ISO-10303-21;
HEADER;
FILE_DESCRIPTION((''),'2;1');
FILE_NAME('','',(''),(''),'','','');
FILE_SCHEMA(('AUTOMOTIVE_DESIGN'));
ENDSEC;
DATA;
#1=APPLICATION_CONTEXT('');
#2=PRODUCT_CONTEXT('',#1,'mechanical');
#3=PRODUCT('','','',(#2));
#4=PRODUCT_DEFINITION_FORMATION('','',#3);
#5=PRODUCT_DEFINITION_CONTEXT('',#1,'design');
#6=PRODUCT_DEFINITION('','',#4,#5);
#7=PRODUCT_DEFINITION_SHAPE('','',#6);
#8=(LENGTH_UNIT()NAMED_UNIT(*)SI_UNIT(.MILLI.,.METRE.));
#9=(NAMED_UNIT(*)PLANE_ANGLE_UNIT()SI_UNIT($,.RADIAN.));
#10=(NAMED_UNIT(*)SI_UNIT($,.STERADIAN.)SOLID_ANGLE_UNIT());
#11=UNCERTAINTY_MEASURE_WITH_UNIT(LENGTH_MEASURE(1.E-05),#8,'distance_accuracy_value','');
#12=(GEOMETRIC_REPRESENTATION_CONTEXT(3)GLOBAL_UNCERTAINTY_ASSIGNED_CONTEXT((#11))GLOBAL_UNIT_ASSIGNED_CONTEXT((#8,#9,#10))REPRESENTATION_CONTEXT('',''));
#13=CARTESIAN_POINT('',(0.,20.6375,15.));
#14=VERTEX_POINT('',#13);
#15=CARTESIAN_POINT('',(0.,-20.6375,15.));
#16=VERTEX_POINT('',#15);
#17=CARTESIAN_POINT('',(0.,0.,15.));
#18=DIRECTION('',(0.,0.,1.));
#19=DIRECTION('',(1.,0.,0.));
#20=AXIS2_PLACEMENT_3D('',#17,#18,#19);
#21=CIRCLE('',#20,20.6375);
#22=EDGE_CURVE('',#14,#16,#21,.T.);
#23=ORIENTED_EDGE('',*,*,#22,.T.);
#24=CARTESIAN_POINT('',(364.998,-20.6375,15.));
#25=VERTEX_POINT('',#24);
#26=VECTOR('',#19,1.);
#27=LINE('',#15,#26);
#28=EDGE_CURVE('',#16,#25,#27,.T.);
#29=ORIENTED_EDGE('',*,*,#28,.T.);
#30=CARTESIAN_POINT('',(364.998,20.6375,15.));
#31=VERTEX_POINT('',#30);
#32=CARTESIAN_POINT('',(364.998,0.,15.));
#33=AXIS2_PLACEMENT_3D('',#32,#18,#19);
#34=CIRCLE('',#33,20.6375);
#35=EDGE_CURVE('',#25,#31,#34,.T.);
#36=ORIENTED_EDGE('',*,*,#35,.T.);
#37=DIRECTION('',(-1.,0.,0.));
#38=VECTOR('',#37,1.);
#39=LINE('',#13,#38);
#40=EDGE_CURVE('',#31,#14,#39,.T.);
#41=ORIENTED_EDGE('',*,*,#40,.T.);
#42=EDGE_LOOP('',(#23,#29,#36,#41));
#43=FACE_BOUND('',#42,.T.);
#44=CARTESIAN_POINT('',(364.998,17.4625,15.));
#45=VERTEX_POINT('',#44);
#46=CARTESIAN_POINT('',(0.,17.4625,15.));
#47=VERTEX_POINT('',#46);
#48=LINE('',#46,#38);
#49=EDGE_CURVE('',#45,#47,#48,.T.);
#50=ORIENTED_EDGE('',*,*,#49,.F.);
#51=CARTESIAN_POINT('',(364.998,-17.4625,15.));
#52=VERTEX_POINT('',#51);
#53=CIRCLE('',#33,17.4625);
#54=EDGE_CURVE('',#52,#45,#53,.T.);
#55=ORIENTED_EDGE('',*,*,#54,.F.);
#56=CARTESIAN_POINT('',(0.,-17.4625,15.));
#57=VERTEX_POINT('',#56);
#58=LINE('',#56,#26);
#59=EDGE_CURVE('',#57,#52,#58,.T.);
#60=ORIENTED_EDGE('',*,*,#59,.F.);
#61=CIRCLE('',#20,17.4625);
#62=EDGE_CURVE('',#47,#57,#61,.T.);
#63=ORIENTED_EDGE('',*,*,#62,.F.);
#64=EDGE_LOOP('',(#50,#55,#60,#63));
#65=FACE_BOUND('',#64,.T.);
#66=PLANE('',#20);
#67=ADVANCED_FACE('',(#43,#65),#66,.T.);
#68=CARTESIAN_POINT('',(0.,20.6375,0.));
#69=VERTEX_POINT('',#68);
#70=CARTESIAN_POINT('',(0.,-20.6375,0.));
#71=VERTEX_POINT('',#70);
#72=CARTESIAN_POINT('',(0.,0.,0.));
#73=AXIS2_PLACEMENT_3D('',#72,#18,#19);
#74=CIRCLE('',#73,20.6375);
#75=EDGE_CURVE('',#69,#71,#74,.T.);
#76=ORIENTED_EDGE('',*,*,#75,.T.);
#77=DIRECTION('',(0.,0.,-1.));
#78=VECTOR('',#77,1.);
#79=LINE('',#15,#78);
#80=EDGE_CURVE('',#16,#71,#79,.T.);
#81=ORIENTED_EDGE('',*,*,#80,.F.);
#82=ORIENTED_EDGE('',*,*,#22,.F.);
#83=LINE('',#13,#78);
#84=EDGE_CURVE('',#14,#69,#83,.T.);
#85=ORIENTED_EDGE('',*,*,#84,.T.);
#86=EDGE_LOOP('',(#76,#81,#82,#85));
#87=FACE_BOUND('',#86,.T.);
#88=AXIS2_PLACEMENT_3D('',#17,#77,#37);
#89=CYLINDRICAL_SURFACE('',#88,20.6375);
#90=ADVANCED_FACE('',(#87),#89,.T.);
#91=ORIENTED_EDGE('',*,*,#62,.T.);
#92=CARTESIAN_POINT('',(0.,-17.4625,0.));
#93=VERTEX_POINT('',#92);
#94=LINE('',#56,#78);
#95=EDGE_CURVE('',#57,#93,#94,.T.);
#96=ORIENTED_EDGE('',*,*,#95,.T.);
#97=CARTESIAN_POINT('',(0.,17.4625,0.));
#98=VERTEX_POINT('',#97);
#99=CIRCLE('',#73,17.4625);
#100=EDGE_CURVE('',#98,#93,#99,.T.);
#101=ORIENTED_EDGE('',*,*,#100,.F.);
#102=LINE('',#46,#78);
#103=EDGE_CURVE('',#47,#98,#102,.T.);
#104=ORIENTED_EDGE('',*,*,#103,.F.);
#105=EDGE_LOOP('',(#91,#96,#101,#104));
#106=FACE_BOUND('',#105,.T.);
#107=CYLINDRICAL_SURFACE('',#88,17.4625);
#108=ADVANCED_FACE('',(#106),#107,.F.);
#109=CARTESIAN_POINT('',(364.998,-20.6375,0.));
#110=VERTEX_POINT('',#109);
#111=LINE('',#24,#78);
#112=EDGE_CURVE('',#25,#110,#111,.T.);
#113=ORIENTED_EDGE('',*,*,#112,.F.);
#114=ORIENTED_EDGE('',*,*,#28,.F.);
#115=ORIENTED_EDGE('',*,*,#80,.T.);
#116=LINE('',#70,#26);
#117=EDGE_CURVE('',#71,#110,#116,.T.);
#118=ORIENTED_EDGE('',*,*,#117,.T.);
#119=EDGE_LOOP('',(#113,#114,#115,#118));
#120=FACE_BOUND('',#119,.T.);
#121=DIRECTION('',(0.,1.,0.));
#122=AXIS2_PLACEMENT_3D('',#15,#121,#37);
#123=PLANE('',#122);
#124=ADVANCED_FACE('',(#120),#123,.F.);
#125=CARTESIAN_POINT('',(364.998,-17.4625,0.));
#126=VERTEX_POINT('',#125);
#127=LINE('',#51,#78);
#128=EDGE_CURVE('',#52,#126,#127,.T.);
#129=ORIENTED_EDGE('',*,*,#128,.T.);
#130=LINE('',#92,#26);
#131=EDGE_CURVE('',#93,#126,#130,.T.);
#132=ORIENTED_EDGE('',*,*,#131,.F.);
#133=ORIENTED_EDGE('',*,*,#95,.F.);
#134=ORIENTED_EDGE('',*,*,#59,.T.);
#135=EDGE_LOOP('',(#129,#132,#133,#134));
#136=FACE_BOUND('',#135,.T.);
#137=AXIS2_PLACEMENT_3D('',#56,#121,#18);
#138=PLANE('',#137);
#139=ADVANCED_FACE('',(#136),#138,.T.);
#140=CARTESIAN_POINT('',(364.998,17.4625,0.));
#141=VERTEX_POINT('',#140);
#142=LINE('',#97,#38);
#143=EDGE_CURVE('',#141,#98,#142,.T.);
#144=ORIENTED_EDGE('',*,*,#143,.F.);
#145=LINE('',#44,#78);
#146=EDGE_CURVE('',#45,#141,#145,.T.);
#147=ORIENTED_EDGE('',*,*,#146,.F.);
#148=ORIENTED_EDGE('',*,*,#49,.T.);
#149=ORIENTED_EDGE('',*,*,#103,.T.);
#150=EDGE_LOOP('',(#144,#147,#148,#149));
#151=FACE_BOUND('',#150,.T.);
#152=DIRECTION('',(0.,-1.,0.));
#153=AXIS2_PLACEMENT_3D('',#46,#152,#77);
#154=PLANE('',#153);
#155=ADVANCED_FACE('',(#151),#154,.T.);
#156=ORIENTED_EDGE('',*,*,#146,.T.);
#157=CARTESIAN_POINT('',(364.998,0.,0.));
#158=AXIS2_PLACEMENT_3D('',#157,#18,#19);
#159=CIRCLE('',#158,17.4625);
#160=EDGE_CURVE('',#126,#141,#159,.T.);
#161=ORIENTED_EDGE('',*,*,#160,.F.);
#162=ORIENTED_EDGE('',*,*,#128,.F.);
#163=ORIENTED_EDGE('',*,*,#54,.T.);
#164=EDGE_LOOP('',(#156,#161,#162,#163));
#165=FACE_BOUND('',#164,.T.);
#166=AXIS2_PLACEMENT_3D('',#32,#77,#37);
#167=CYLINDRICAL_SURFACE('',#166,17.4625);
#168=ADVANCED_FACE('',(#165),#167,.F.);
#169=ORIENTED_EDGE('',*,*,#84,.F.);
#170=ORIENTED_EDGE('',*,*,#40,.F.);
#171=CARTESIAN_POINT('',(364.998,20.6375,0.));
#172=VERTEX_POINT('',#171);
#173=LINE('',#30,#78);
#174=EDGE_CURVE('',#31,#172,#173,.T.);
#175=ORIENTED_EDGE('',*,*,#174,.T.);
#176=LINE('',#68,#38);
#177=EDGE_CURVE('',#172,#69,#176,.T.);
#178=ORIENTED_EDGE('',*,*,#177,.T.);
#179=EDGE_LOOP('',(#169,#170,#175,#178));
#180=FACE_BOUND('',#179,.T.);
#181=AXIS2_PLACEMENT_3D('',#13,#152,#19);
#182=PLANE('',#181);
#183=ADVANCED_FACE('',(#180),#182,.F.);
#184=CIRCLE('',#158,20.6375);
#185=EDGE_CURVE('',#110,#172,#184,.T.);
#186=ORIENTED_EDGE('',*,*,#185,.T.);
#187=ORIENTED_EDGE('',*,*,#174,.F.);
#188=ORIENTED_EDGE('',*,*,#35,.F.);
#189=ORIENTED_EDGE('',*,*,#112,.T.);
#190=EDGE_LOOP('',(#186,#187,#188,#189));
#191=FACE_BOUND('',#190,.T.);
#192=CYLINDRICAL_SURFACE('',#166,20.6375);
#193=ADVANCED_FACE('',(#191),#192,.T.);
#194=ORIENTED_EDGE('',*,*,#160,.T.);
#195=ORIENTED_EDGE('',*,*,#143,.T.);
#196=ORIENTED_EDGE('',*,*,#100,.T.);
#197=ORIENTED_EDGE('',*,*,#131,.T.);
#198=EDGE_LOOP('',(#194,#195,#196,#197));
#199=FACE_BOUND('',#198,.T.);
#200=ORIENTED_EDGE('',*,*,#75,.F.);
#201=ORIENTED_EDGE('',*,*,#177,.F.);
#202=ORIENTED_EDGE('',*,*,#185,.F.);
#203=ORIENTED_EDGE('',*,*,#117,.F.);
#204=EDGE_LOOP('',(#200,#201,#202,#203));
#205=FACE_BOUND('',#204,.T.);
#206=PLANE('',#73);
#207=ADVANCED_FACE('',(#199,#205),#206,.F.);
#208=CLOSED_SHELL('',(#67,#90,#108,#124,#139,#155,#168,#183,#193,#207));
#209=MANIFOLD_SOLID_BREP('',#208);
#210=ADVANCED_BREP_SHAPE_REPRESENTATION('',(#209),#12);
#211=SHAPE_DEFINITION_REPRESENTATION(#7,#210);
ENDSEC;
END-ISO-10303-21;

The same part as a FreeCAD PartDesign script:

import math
import FreeCAD as App
import Part
import Sketcher
Q = App.Units.Quantity

doc = App.newDocument("Part")
body = doc.addObject("PartDesign::Body", "Body")

# Sketch on XY plane
sketch1 = body.newObject("Sketcher::SketchObject", "Sketch")
sketch1.AttachmentSupport = (doc.getObject("XY_Plane"), [""])
sketch1.MapMode = "FlatFace"
sketch1.addGeometry([
    Part.LineSegment(App.Vector(365, 21, 0), App.Vector(0, 21, 0)),  # 0
    Part.ArcOfCircle(Part.Circle(App.Vector(0, 0, 0), App.Vector(0, 0, 1), 21), math.radians(90), math.radians(270)),  # 1
    Part.LineSegment(App.Vector(0, -21, 0), App.Vector(365, -21, 0)),  # 2
    Part.ArcOfCircle(Part.Circle(App.Vector(365, 0, 0), App.Vector(0, 0, 1), 21), math.radians(-90), math.radians(90)),  # 3
    Part.LineSegment(App.Vector(0, 17, 0), App.Vector(365, 17, 0)),  # 4
    Part.ArcOfCircle(Part.Circle(App.Vector(365, 0, 0), App.Vector(0, 0, 1), 17), math.radians(-90), math.radians(90)),  # 5
    Part.LineSegment(App.Vector(365, -17, 0), App.Vector(0, -17, 0)),  # 6
    Part.ArcOfCircle(Part.Circle(App.Vector(0, 0, 0), App.Vector(0, 0, 1), 17), math.radians(90), math.radians(270)),  # 7
], False)
sketch1.addConstraint([
    Sketcher.Constraint("Tangent", 0, 2, 1, 1),
    Sketcher.Constraint("Tangent", 1, 2, 2, 1),
    Sketcher.Constraint("Tangent", 2, 2, 3, 1),
    Sketcher.Constraint("Tangent", 3, 2, 0, 1),
    Sketcher.Constraint("Tangent", 4, 2, 5, 2),
    Sketcher.Constraint("Tangent", 5, 1, 6, 1),
    Sketcher.Constraint("Tangent", 6, 2, 7, 2),
    Sketcher.Constraint("Tangent", 7, 1, 4, 1),
    Sketcher.Constraint("Horizontal", 0),
    Sketcher.Constraint("Horizontal", 2),
    Sketcher.Constraint("Horizontal", 4),
    Sketcher.Constraint("Horizontal", 6),
    Sketcher.Constraint("Coincident", 1, 3, -1, 1),
    Sketcher.Constraint("Coincident", 7, 3, -1, 1),
    Sketcher.Constraint("Vertical", 5, 3, 2, 2),
    Sketcher.Constraint("Radius", 1, Q("0.8125 in")),
    Sketcher.Constraint("Radius", 5, Q("0.6875 in")),
    Sketcher.Constraint("DistanceX", 0, 2, 0, 1, Q("14.37 in")),
])
pad1 = body.newObject("PartDesign::Pad", "Pad")
pad1.Profile = sketch1
pad1.Length = 15

doc.recompute()
